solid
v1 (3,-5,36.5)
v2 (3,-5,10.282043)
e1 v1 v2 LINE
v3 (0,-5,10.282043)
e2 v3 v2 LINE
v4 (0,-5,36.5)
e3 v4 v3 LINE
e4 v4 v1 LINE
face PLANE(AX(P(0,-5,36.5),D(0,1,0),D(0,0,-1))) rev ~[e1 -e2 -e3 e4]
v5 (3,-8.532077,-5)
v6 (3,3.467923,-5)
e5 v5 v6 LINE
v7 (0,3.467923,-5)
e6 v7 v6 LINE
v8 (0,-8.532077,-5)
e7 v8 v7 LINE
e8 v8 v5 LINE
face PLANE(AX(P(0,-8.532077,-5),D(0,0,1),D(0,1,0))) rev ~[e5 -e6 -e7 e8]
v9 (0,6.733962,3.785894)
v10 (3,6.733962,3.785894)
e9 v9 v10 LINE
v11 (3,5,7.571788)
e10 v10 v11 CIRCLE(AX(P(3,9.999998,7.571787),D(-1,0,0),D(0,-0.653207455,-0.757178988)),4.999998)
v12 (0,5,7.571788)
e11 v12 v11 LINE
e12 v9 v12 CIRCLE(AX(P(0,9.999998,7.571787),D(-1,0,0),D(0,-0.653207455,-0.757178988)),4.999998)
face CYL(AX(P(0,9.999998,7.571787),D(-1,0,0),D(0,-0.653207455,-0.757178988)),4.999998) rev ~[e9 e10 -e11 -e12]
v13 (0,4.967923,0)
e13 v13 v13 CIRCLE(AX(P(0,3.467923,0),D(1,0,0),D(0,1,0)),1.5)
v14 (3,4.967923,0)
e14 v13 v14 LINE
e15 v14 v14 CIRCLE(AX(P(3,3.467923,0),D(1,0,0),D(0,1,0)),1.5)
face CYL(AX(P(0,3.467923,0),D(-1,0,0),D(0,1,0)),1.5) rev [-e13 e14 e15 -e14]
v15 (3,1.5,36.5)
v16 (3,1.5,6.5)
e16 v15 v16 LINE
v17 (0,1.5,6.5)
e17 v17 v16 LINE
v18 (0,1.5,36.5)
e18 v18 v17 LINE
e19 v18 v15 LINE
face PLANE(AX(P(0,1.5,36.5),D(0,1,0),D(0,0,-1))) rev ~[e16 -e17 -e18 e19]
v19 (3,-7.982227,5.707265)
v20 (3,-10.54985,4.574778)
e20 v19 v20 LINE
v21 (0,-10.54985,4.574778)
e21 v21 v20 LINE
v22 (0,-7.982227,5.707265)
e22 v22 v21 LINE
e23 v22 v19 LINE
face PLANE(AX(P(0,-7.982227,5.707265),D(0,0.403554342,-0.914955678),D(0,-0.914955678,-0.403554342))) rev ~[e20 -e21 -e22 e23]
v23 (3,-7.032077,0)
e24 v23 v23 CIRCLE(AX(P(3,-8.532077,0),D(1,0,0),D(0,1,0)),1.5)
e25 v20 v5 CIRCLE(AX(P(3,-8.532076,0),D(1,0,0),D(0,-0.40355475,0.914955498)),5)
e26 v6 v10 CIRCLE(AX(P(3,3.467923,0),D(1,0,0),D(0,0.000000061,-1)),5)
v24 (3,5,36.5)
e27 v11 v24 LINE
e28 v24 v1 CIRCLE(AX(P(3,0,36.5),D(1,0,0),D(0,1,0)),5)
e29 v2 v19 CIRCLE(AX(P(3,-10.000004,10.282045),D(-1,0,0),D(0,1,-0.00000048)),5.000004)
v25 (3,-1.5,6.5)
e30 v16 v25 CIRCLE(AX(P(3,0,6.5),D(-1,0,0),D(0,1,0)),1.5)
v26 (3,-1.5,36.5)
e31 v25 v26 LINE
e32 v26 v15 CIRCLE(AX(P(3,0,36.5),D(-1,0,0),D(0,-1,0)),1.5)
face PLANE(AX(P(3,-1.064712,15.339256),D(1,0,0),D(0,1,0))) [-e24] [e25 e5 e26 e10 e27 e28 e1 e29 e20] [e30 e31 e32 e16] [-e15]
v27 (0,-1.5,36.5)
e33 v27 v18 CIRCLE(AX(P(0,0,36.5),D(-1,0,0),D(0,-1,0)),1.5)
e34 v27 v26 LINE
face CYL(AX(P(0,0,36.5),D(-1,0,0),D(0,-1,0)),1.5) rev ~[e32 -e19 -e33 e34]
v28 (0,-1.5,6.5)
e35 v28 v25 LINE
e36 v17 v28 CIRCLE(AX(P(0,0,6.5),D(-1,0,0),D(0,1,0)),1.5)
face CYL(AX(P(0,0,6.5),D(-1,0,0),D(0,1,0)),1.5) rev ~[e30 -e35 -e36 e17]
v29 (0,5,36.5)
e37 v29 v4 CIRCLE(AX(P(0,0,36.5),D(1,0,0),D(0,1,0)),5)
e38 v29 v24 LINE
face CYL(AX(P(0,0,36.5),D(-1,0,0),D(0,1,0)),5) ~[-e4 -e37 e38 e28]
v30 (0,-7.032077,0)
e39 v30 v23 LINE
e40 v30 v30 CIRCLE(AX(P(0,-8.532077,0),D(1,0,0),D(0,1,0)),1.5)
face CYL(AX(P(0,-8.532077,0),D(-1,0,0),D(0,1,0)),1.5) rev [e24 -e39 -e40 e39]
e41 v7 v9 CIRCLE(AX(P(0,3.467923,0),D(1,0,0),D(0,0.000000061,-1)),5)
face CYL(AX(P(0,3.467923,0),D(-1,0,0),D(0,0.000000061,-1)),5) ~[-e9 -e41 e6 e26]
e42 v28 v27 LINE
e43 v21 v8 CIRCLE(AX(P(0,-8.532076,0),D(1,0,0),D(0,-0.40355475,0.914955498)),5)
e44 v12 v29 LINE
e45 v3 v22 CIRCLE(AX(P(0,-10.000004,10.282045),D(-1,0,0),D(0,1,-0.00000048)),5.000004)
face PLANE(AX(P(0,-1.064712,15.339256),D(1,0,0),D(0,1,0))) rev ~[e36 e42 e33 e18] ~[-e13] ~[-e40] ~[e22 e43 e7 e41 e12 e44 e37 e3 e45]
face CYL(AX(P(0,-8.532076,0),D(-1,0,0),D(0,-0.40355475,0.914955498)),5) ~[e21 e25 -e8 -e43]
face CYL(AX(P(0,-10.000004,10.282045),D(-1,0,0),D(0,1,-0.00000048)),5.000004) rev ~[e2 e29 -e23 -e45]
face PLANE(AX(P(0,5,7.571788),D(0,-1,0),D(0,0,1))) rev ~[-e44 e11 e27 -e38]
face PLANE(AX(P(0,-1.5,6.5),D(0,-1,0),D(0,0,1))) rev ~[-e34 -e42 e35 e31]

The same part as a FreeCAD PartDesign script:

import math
import FreeCAD as App
import Part
import Sketcher

V = App.Vector

doc = App.newDocument("Part")
params = doc.addObject("Spreadsheet::Sheet", "Params")
for row, (alias, value) in enumerate([
    ("sketch1_diameter", "3 mm"),
    ("sketch1_radius", "5 mm"),
    ("sketch1_width", "12 mm"),
    ("sketch1_height", "30 mm"),
    ("pad1_length", "3 mm"),
], start=1):
    params.set(f"A{row}", alias)
    params.set(f"B{row}", "=" + value)
    params.setAlias(f"B{row}", alias)

body = doc.addObject("PartDesign::Body", "Body")

# Sketch on YZ plane
sketch1 = body.newObject("Sketcher::SketchObject", "Sketch")
sketch1.AttachmentSupport = (doc.getObject("YZ_Plane"), [""])
sketch1.MapMode = "FlatFace"
sketch1.addGeometry(Part.LineSegment(V(5, 7.6, 0), V(5, 36.5, 0)), False)
sketch1.addGeometry(Part.ArcOfCircle(Part.Circle(V(0, 36.5, 0), V(0, 0, 1), 5), math.radians(0), math.radians(180)), False)
sketch1.addGeometry(Part.LineSegment(V(-5, 36.5, 0), V(-5, 10.3, 0)), False)
sketch1.addGeometry(Part.ArcOfCircle(Part.Circle(V(-10, 10.3, 0), V(0, 0, 1), 5), math.radians(-66), math.radians(0)), False)
sketch1.addGeometry(Part.LineSegment(V(-8, 5.7, 0), V(-10.5, 4.6, 0)), False)
sketch1.addGeometry(Part.ArcOfCircle(Part.Circle(V(-8.5, 0, 0), V(0, 0, 1), 5), math.radians(114), math.radians(270)), False)
sketch1.addGeometry(Part.LineSegment(V(-8.5, -5, 0), V(3.5, -5, 0)), False)
sketch1.addGeometry(Part.ArcOfCircle(Part.Circle(V(3.5, 0, 0), V(0, 0, 1), 5), math.radians(-90), math.radians(49)), False)
sketch1.addGeometry(Part.ArcOfCircle(Part.Circle(V(10, 7.6, 0), V(0, 0, 1), 5), math.radians(180), math.radians(229)), False)
sketch1.addGeometry(Part.Circle(V(-8.5, 0, 0), V(0, 0, 1), 1.5), False)
sketch1.addGeometry(Part.Circle(V(3.5, 0, 0), V(0, 0, 1), 1.5), False)
sketch1.addGeometry(Part.LineSegment(V(-1.5, 6.5, 0), V(-1.5, 36.5, 0)), False)
sketch1.addGeometry(Part.ArcOfCircle(Part.Circle(V(0, 36.5, 0), V(0, 0, 1), 1.5), math.radians(0), math.radians(180)), False)
sketch1.addGeometry(Part.LineSegment(V(1.5, 36.5, 0), V(1.5, 6.5, 0)), False)
sketch1.addGeometry(Part.ArcOfCircle(Part.Circle(V(0, 6.5, 0), V(0, 0, 1), 1.5), math.radians(180), math.radians(360)), False)
sketch1.addConstraint(Sketcher.Constraint("Tangent", 0, 2, 1, 1))
sketch1.addConstraint(Sketcher.Constraint("Tangent", 1, 2, 2, 1))
sketch1.addConstraint(Sketcher.Constraint("Tangent", 2, 2, 3, 2))
sketch1.addConstraint(Sketcher.Constraint("Tangent", 3, 1, 4, 1))
sketch1.addConstraint(Sketcher.Constraint("Tangent", 4, 2, 5, 1))
sketch1.addConstraint(Sketcher.Constraint("Tangent", 5, 2, 6, 1))
sketch1.addConstraint(Sketcher.Constraint("Tangent", 6, 2, 7, 1))
sketch1.addConstraint(Sketcher.Constraint("Tangent", 7, 2, 8, 2))
sketch1.addConstraint(Sketcher.Constraint("Tangent", 8, 1, 0, 1))
sketch1.addConstraint(Sketcher.Constraint("Tangent", 11, 2, 12, 2))
sketch1.addConstraint(Sketcher.Constraint("Tangent", 12, 1, 13, 1))
sketch1.addConstraint(Sketcher.Constraint("Tangent", 13, 2, 14, 2))
sketch1.addConstraint(Sketcher.Constraint("Tangent", 14, 1, 11, 1))
sketch1.addConstraint(Sketcher.Constraint("Vertical", 0))
sketch1.addConstraint(Sketcher.Constraint("Vertical", 2))
sketch1.addConstraint(Sketcher.Constraint("Horizontal", 6))
sketch1.addConstraint(Sketcher.Constraint("Vertical", 11))
sketch1.addConstraint(Sketcher.Constraint("Vertical", 13))
sketch1.addConstraint(Sketcher.Constraint("Coincident", 9, 3, 5, 3))
sketch1.addConstraint(Sketcher.Constraint("Coincident", 10, 3, 7, 3))
sketch1.addConstraint(Sketcher.Constraint("Coincident", 12, 3, 1, 3))
sketch1.addConstraint(Sketcher.Constraint("Equal", 1, 5))
sketch1.addConstraint(Sketcher.Constraint("Equal", 5, 7))
sketch1.addConstraint(Sketcher.Constraint("Equal", 9, 10))
sketch1.addConstraint(Sketcher.Constraint("Equal", 10, 12))
sketch1.addConstraint(Sketcher.Constraint("PointOnObject", 1, 3, -2))
sketch1.addConstraint(Sketcher.Constraint("PointOnObject", 5, 3, -1))
sketch1.addConstraint(Sketcher.Constraint("Diameter", 9, 3.0))
sketch1.addConstraint(Sketcher.Constraint("Radius", 1, 5.0))
sketch1.addConstraint(Sketcher.Constraint("DistanceX", 6, 1, 6, 2, 12.0))
sketch1.addConstraint(Sketcher.Constraint("DistanceY", 11, 1, 11, 2, 30.0))
sketch1.addConstraint(Sketcher.Constraint("DistanceX", 3, 3, 8, 3, 20.000002))
sketch1.addConstraint(Sketcher.Constraint("DistanceY", -1, 1, 1, 3, 36.5))
sketch1.addConstraint(Sketcher.Constraint("Radius", 3, 5.000004))
sketch1.addConstraint(Sketcher.Constraint("Distance", 4, 2.806281))
sketch1.addConstraint(Sketcher.Constraint("DistanceY", 0, 1, 0, 2, 28.928212))
sketch1.setExpression("Constraints[27]", "Params.sketch1_diameter")
sketch1.setExpression("Constraints[28]", "Params.sketch1_radius")
sketch1.setExpression("Constraints[29]", "Params.sketch1_width")
sketch1.setExpression("Constraints[30]", "Params.sketch1_height")
pad1 = body.newObject("PartDesign::Pad", "Pad")
pad1.Profile = sketch1
pad1.setExpression("Length", "Params.pad1_length")

doc.recompute()
